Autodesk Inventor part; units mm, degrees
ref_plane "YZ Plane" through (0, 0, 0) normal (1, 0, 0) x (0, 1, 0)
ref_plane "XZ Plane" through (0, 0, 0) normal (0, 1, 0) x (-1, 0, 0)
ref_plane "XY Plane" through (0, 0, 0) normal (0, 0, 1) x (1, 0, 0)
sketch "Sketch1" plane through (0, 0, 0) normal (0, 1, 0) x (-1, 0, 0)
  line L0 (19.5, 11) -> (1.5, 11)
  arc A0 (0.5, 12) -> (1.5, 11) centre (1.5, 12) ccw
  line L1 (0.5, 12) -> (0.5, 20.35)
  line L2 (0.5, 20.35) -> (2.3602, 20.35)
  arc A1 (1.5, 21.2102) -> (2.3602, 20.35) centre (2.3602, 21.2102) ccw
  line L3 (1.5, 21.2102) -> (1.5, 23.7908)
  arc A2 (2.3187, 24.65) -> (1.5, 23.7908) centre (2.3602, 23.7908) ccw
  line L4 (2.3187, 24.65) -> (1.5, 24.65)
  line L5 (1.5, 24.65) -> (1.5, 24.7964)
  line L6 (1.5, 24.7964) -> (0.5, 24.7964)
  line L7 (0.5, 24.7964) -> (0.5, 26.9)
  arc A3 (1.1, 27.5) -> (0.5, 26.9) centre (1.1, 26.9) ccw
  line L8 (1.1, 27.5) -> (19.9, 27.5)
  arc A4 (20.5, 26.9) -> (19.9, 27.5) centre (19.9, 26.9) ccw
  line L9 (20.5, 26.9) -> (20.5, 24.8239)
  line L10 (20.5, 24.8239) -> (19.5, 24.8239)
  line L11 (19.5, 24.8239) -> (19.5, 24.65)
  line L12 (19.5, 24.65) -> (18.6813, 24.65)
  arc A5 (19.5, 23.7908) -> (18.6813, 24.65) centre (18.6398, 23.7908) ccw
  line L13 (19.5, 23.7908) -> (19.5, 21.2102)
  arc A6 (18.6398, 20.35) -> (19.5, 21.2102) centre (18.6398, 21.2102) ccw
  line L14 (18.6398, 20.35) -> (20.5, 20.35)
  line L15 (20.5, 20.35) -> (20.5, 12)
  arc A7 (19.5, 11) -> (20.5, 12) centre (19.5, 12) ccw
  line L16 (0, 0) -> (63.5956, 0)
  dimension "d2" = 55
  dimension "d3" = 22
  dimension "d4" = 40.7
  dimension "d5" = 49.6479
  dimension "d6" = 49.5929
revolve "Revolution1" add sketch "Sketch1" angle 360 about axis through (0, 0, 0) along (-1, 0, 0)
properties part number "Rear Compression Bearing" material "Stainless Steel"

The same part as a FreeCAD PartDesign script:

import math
import FreeCAD as App
import Part
import Sketcher

V = App.Vector
Q = App.Units.Quantity

doc = App.newDocument("Part")
body = doc.addObject("PartDesign::Body", "Body")

# Sketch on XZ plane
sketch1 = body.newObject("Sketcher::SketchObject", "Sketch")
sketch1.AttachmentSupport = (doc.getObject("XZ_Plane"), [""])
sketch1.MapMode = "FlatFace"
sketch1.addGeometry([
    Part.LineSegment(V(-1.5, 11, 0), V(-19.5, 11, 0)),  # 0
    Part.ArcOfCircle(Part.Circle(V(-19.5, 12, 0), V(0, 0, 1), 1), math.radians(180), math.radians(270)),  # 1
    Part.LineSegment(V(-20.5, 12, 0), V(-20.5, 20.35, 0)),  # 2
    Part.LineSegment(V(-20.5, 20.35, 0), V(-18.64, 20.35, 0)),  # 3
    Part.ArcOfCircle(Part.Circle(V(-18.64, 21.21, 0), V(0, 0, 1), 0.86), math.radians(180), math.radians(270)),  # 4
    Part.LineSegment(V(-19.5, 21.21, 0), V(-19.5, 23.79, 0)),  # 5
    Part.ArcOfCircle(Part.Circle(V(-18.64, 23.79, 0), V(0, 0, 1), 0.86), math.radians(93), math.radians(180)),  # 6
    Part.LineSegment(V(-18.68, 24.65, 0), V(-19.5, 24.65, 0)),  # 7
    Part.LineSegment(V(-19.5, 24.65, 0), V(-19.5, 24.82, 0)),  # 8
    Part.LineSegment(V(-19.5, 24.82, 0), V(-20.5, 24.82, 0)),  # 9
    Part.LineSegment(V(-20.5, 24.82, 0), V(-20.5, 26.9, 0)),  # 10
    Part.ArcOfCircle(Part.Circle(V(-19.9, 26.9, 0), V(0, 0, 1), 0.6), math.radians(90), math.radians(180)),  # 11
    Part.LineSegment(V(-19.9, 27.5, 0), V(-1.1, 27.5, 0)),  # 12
    Part.ArcOfCircle(Part.Circle(V(-1.1, 26.9, 0), V(0, 0, 1), 0.6), math.radians(0), math.radians(90)),  # 13
    Part.LineSegment(V(-0.5, 26.9, 0), V(-0.5, 24.8, 0)),  # 14
    Part.LineSegment(V(-0.5, 24.8, 0), V(-1.5, 24.8, 0)),  # 15
    Part.LineSegment(V(-1.5, 24.8, 0), V(-1.5, 24.65, 0)),  # 16
    Part.LineSegment(V(-1.5, 24.65, 0), V(-2.32, 24.65, 0)),  # 17
    Part.ArcOfCircle(Part.Circle(V(-2.36, 23.79, 0), V(0, 0, 1), 0.86), math.radians(0), math.radians(87)),  # 18
    Part.LineSegment(V(-1.5, 23.79, 0), V(-1.5, 21.21, 0)),  # 19
    Part.ArcOfCircle(Part.Circle(V(-2.36, 21.21, 0), V(0, 0, 1), 0.86), math.radians(-90), math.radians(0)),  # 20
    Part.LineSegment(V(-2.36, 20.35, 0), V(-0.5, 20.35, 0)),  # 21
    Part.LineSegment(V(-0.5, 20.35, 0), V(-0.5, 12, 0)),  # 22
    Part.ArcOfCircle(Part.Circle(V(-1.5, 12, 0), V(0, 0, 1), 1), math.radians(-90), math.radians(0)),  # 23
], False)
sketch1.addConstraint([
    Sketcher.Constraint("Tangent", 0, 2, 1, 2),
    Sketcher.Constraint("Tangent", 1, 1, 2, 1),
    Sketcher.Constraint("Coincident", 2, 2, 3, 1),
    Sketcher.Constraint("Tangent", 3, 2, 4, 2),
    Sketcher.Constraint("Tangent", 4, 1, 5, 1),
    Sketcher.Constraint("Tangent", 5, 2, 6, 2),
    Sketcher.Constraint("Coincident", 6, 1, 7, 1),
    Sketcher.Constraint("Coincident", 7, 2, 8, 1),
    Sketcher.Constraint("Coincident", 8, 2, 9, 1),
    Sketcher.Constraint("Coincident", 9, 2, 10, 1),
    Sketcher.Constraint("Tangent", 10, 2, 11, 2),
    Sketcher.Constraint("Tangent", 11, 1, 12, 1),
    Sketcher.Constraint("Tangent", 12, 2, 13, 2),
    Sketcher.Constraint("Tangent", 13, 1, 14, 1),
    Sketcher.Constraint("Coincident", 14, 2, 15, 1),
    Sketcher.Constraint("Coincident", 15, 2, 16, 1),
    Sketcher.Constraint("Coincident", 16, 2, 17, 1),
    Sketcher.Constraint("Coincident", 17, 2, 18, 2),
    Sketcher.Constraint("Tangent", 18, 1, 19, 1),
    Sketcher.Constraint("Tangent", 19, 2, 20, 2),
    Sketcher.Constraint("Tangent", 20, 1, 21, 1),
    Sketcher.Constraint("Coincident", 21, 2, 22, 1),
    Sketcher.Constraint("Tangent", 22, 2, 23, 2),
    Sketcher.Constraint("Tangent", 23, 1, 0, 1),
    Sketcher.Constraint("Horizontal", 0),
    Sketcher.Constraint("Vertical", 2),
    Sketcher.Constraint("Horizontal", 3),
    Sketcher.Constraint("Vertical", 5),
    Sketcher.Constraint("Horizontal", 7),
    Sketcher.Constraint("Vertical", 8),
    Sketcher.Constraint("Horizontal", 9),
    Sketcher.Constraint("Vertical", 10),
    Sketcher.Constraint("Horizontal", 12),
    Sketcher.Constraint("Vertical", 14),
    Sketcher.Constraint("Horizontal", 15),
    Sketcher.Constraint("Vertical", 16),
    Sketcher.Constraint("Horizontal", 17),
    Sketcher.Constraint("Vertical", 19),
    Sketcher.Constraint("Horizontal", 21),
    Sketcher.Constraint("Vertical", 22),
    Sketcher.Constraint("Equal", 4, 6),
    Sketcher.Constraint("Equal", 11, 13),
    Sketcher.Constraint("Equal", 6, 18),
    Sketcher.Constraint("Equal", 18, 20),
    Sketcher.Constraint("Equal", 1, 23),
    Sketcher.Constraint("Horizontal", 6, 3, 18, 3),
    Sketcher.Constraint("Horizontal", 4, 3, 20, 3),
    Sketcher.Constraint("Horizontal", 7, 2, 16, 2),
    Sketcher.Constraint("Vertical", 0, 2, 4, 1),
    Sketcher.Constraint("Vertical", 5, 2, 7, 2),
    Sketcher.Constraint("Vertical", 2, 2, 9, 2),
    Sketcher.Constraint("Vertical", 23, 3, 15, 2),
    Sketcher.Constraint("Vertical", 16, 2, 18, 1),
    Sketcher.Constraint("Vertical", 14, 2, 21, 2),
    Sketcher.Constraint("Radius", 1, Q("1 mm")),
    Sketcher.Constraint("Radius", 11, Q("0.6 mm")),
    Sketcher.Constraint("DistanceX", 0, 2, 0, 1, Q("18 mm")),
    Sketcher.Constraint("DistanceY", -1, 1, 1, 3, Q("12 mm")),
    Sketcher.Constraint("DistanceY", 2, 1, 2, 2, Q("8.35 mm")),
    Sketcher.Constraint("DistanceX", 1, 3, -1, 1, Q("19.5 mm")),
    Sketcher.Constraint("DistanceY", -1, 1, 11, 3, Q("26.9 mm")),
    Sketcher.Constraint("Radius", 4, Q("0.8602 mm")),
    Sketcher.Constraint("DistanceY", 20, 1, 17, 2, Q("4.3 mm")),
    Sketcher.Constraint("DistanceY", 8, 1, 8, 2, Q("0.174 mm")),
    Sketcher.Constraint("DistanceX", 7, 2, 7, 1, Q("0.8187 mm")),
    Sketcher.Constraint("DistanceY", 14, 2, 14, 1, Q("2.1036 mm")),
])
revolution = body.newObject("PartDesign::Revolution", "Revolution")
revolution.Profile = sketch1
revolution.ReferenceAxis = (sketch1, ["H_Axis"])
revolution.Angle = 360

doc.recompute()
